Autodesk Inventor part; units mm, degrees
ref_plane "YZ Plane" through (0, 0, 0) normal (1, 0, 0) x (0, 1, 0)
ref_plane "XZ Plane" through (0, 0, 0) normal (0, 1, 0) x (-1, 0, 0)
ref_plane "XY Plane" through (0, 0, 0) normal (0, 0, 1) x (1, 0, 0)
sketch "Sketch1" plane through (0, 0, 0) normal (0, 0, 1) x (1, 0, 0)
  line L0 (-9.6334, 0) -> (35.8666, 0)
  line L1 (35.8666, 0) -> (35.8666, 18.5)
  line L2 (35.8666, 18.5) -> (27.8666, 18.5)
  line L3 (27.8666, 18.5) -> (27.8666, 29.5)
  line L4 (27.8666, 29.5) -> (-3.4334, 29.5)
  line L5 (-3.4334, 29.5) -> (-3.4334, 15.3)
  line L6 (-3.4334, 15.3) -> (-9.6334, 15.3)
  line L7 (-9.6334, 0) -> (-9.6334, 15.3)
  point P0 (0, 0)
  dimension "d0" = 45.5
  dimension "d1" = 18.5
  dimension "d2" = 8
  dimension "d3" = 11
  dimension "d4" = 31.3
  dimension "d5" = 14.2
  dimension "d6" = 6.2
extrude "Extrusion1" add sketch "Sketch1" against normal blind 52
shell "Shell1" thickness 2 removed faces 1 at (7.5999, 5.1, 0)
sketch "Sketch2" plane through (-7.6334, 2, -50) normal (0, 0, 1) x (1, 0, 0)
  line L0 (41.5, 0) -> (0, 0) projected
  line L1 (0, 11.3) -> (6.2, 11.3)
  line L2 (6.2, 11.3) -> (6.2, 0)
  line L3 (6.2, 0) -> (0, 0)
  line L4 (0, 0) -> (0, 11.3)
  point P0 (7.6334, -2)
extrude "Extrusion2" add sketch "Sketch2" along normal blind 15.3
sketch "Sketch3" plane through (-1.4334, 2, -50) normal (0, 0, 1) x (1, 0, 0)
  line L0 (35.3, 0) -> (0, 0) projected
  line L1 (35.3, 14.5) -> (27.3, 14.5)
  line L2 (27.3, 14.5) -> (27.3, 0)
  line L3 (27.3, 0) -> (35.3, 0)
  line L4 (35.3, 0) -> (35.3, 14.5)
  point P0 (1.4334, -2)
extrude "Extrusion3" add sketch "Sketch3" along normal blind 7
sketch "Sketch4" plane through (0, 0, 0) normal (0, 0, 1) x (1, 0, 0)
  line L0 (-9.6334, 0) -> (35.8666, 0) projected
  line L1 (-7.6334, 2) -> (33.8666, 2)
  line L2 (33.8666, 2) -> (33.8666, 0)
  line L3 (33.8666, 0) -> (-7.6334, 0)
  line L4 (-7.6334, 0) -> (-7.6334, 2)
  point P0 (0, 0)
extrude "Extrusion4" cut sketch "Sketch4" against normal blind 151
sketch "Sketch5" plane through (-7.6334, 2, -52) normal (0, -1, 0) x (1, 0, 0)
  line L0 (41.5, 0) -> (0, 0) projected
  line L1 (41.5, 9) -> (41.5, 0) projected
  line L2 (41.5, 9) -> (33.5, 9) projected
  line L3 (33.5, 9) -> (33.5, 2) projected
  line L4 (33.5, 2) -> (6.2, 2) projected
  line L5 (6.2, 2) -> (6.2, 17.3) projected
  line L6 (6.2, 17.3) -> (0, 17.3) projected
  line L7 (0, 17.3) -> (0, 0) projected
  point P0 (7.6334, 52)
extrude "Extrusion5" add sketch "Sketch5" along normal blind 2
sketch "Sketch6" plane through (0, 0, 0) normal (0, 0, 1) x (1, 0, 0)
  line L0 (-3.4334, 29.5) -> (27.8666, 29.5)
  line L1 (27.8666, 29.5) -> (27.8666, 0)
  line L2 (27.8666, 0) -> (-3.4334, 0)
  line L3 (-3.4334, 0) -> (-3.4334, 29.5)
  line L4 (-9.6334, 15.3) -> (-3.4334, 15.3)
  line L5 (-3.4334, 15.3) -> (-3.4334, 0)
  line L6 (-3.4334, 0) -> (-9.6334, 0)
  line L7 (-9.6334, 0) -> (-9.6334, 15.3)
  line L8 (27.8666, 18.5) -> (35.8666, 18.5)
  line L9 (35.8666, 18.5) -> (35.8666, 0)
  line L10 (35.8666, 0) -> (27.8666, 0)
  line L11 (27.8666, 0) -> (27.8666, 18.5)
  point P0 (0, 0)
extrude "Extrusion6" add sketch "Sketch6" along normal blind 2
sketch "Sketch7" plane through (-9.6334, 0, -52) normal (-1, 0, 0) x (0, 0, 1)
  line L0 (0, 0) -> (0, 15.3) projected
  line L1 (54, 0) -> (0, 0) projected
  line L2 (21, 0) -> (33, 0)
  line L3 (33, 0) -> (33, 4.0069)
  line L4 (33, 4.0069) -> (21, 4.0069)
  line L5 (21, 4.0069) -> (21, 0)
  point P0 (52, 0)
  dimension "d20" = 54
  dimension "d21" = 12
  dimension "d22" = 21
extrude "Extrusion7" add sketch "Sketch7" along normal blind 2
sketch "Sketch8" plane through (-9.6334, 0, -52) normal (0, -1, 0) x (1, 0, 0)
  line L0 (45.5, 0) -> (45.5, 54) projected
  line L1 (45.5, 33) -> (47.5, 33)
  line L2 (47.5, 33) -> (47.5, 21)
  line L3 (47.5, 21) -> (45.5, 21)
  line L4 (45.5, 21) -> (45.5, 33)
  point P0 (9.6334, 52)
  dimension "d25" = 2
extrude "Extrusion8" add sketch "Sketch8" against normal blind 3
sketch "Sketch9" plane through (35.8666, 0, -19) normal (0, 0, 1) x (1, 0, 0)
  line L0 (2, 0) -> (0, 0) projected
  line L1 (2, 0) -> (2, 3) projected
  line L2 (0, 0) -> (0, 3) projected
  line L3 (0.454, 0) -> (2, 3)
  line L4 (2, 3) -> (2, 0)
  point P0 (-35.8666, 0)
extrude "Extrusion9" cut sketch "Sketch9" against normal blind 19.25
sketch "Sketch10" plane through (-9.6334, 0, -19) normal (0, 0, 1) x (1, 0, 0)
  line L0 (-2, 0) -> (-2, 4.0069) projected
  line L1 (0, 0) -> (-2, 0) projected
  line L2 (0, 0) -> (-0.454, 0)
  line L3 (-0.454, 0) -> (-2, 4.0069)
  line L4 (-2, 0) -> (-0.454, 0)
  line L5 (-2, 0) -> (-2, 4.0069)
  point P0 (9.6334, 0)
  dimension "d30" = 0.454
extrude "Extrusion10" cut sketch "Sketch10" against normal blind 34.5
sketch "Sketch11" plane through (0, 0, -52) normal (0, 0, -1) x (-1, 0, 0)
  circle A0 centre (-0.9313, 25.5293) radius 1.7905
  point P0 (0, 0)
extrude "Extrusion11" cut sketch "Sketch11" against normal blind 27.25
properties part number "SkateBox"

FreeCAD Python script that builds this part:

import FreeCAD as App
import Part
import Sketcher
from FreeCAD import Vector


def faces_at(feature, points):
    """Names of the faces that lie closest to the given points."""
    faces = feature.Shape.Faces
    near = lambda p: min(range(len(faces)), key=lambda i: faces[i].distToShape(Part.Vertex(*p))[0])
    return sorted({f"Face{near(p) + 1}" for p in points})

doc = App.newDocument("Part")
body = doc.addObject("PartDesign::Body", "Body")

# Sketch on XY plane
sketch1 = body.newObject("Sketcher::SketchObject", "Sketch")
sketch1.AttachmentSupport = (doc.getObject("XY_Plane"), [""])
sketch1.MapMode = "FlatFace"
sketch1.addGeometry([
    Part.LineSegment(Vector(-10, 15, 0), Vector(-10, 0, 0)),  # 0
    Part.LineSegment(Vector(-10, 0, 0), Vector(36, 0, 0)),  # 1
    Part.LineSegment(Vector(36, 0, 0), Vector(36, 18, 0)),  # 2
    Part.LineSegment(Vector(36, 18, 0), Vector(28, 18, 0)),  # 3
    Part.LineSegment(Vector(28, 18, 0), Vector(28, 30, 0)),  # 4
    Part.LineSegment(Vector(28, 30, 0), Vector(-3, 30, 0)),  # 5
    Part.LineSegment(Vector(-3, 30, 0), Vector(-3, 15, 0)),  # 6
    Part.LineSegment(Vector(-3, 15, 0), Vector(-10, 15, 0)),  # 7
], False)
sketch1.addConstraint([
    Sketcher.Constraint("Coincident", 0, 2, 1, 1),
    Sketcher.Constraint("Coincident", 1, 2, 2, 1),
    Sketcher.Constraint("Coincident", 2, 2, 3, 1),
    Sketcher.Constraint("Coincident", 3, 2, 4, 1),
    Sketcher.Constraint("Coincident", 4, 2, 5, 1),
    Sketcher.Constraint("Coincident", 5, 2, 6, 1),
    Sketcher.Constraint("Coincident", 6, 2, 7, 1),
    Sketcher.Constraint("Coincident", 7, 2, 0, 1),
    Sketcher.Constraint("Vertical", 0),
    Sketcher.Constraint("Horizontal", 1),
    Sketcher.Constraint("Vertical", 2),
    Sketcher.Constraint("Horizontal", 3),
    Sketcher.Constraint("Vertical", 4),
    Sketcher.Constraint("Horizontal", 5),
    Sketcher.Constraint("Vertical", 6),
    Sketcher.Constraint("Horizontal", 7),
    Sketcher.Constraint("PointOnObject", 0, 2, -1),
    Sketcher.Constraint("DistanceX", 3, 2, 3, 1, 8.0),
    Sketcher.Constraint("DistanceY", 4, 1, 4, 2, 11.0),
    Sketcher.Constraint("DistanceX", 1, 1, 1, 2, 45.5),
    Sketcher.Constraint("DistanceX", 5, 2, 5, 1, 31.3),
    Sketcher.Constraint("DistanceY", 2, 1, 2, 2, 18.5),
    Sketcher.Constraint("DistanceY", 6, 2, 6, 1, 14.2),
    Sketcher.Constraint("DistanceX", 0, 2, -1, 1, 9.6334),
])
pad1 = body.newObject("PartDesign::Pad", "Pad")
pad1.Profile = sketch1
pad1.Length = 52
pad1.Reversed = True
doc.recompute()

thickness = body.newObject("PartDesign::Thickness", "Thickness")
thickness.Base = (pad1, faces_at(pad1, [(7.6, 5.1, 0)]))
thickness.Value = 2
thickness.Reversed = True
thickness.Join = "Intersection"

# Sketch on XY plane
sketch2 = body.newObject("Sketcher::SketchObject", "Sketch001")
sketch2.AttachmentSupport = (doc.getObject("XY_Plane"), [""])
sketch2.MapMode = "FlatFace"
sketch2.AttachmentOffset = App.Placement(Vector(0, 0, -50), App.Rotation())
sketch2.addGeometry([
    Part.LineSegment(Vector(-8, 2, 0), Vector(-1, 2, 0)),
    Part.LineSegment(Vector(-1, 2, 0), Vector(-1, 13, 0)),
    Part.LineSegment(Vector(-1, 13, 0), Vector(-8, 13, 0)),
    Part.LineSegment(Vector(-8, 13, 0), Vector(-8, 2, 0)),
], False)
sketch2.addConstraint([
    Sketcher.Constraint("Coincident", 0, 2, 1, 1),
    Sketcher.Constraint("Coincident", 1, 2, 2, 1),
    Sketcher.Constraint("Coincident", 2, 2, 3, 1),
    Sketcher.Constraint("Coincident", 3, 2, 0, 1),
    Sketcher.Constraint("Horizontal", 0),
    Sketcher.Constraint("Vertical", 1),
    Sketcher.Constraint("Horizontal", 2),
    Sketcher.Constraint("Vertical", 3),
    Sketcher.Constraint("DistanceX", 0, 1, 0, 2, 6.2),
    Sketcher.Constraint("DistanceY", 1, 1, 1, 2, 11.3),
    Sketcher.Constraint("DistanceY", -1, 1, 0, 2, 2.0),
    Sketcher.Constraint("DistanceX", 0, 2, -1, 1, 1.4334),
])
pad2 = body.newObject("PartDesign::Pad", "Pad001")
pad2.Profile = sketch2
pad2.Length = 15.3

# Sketch on XY plane
sketch3 = body.newObject("Sketcher::SketchObject", "Sketch002")
sketch3.AttachmentSupport = (doc.getObject("XY_Plane"), [""])
sketch3.MapMode = "FlatFace"
sketch3.AttachmentOffset = App.Placement(Vector(0, 0, -50), App.Rotation())
sketch3.addGeometry([
    Part.LineSegment(Vector(26, 2, 0), Vector(34, 2, 0)),
    Part.LineSegment(Vector(34, 2, 0), Vector(34, 16, 0)),
    Part.LineSegment(Vector(34, 16, 0), Vector(26, 16, 0)),
    Part.LineSegment(Vector(26, 16, 0), Vector(26, 2, 0)),
], False)
sketch3.addConstraint([
    Sketcher.Constraint("Coincident", 0, 2, 1, 1),
    Sketcher.Constraint("Coincident", 1, 2, 2, 1),
    Sketcher.Constraint("Coincident", 2, 2, 3, 1),
    Sketcher.Constraint("Coincident", 3, 2, 0, 1),
    Sketcher.Constraint("Horizontal", 0),
    Sketcher.Constraint("Vertical", 1),
    Sketcher.Constraint("Horizontal", 2),
    Sketcher.Constraint("Vertical", 3),
    Sketcher.Constraint("DistanceX", 0, 1, 0, 2, 8.0),
    Sketcher.Constraint("DistanceY", 1, 1, 1, 2, 14.5),
    Sketcher.Constraint("DistanceY", -1, 1, 0, 2, 2.0),
    Sketcher.Constraint("DistanceX", -1, 1, 0, 2, 33.8666),
])
pad3 = body.newObject("PartDesign::Pad", "Pad002")
pad3.Profile = sketch3
pad3.Length = 7

# Sketch on XY plane
sketch4 = body.newObject("Sketcher::SketchObject", "Sketch003")
sketch4.AttachmentSupport = (doc.getObject("XY_Plane"), [""])
sketch4.MapMode = "FlatFace"
sketch4.addGeometry([
    Part.LineSegment(Vector(-7.6, 2, 0), Vector(-7.6, 0, 0)),
    Part.LineSegment(Vector(-7.6, 0, 0), Vector(33.9, 0, 0)),
    Part.LineSegment(Vector(33.9, 0, 0), Vector(33.9, 2, 0)),
    Part.LineSegment(Vector(33.9, 2, 0), Vector(-7.6, 2, 0)),
], False)
sketch4.addConstraint([
    Sketcher.Constraint("Coincident", 0, 2, 1, 1),
    Sketcher.Constraint("Coincident", 1, 2, 2, 1),
    Sketcher.Constraint("Coincident", 2, 2, 3, 1),
    Sketcher.Constraint("Coincident", 3, 2, 0, 1),
    Sketcher.Constraint("Vertical", 0),
    Sketcher.Constraint("Horizontal", 1),
    Sketcher.Constraint("Vertical", 2),
    Sketcher.Constraint("Horizontal", 3),
    Sketcher.Constraint("PointOnObject", 0, 2, -1),
    Sketcher.Constraint("DistanceY", 0, 2, 0, 1, 2.0),
    Sketcher.Constraint("DistanceX", 1, 1, 1, 2, 41.5),
    Sketcher.Constraint("DistanceX", 0, 2, -1, 1, 7.6334),
])
pocket1 = body.newObject("PartDesign::Pocket", "Pocket")
pocket1.Profile = sketch4
pocket1.Length = 151

# Sketch on XZ plane
sketch5 = body.newObject("Sketcher::SketchObject", "Sketch004")
sketch5.AttachmentSupport = (doc.getObject("XZ_Plane"), [""])
sketch5.MapMode = "FlatFace"
sketch5.AttachmentOffset = App.Placement(Vector(0, 0, -2), App.Rotation())
sketch5.addGeometry([
    Part.LineSegment(Vector(-8, -52, 0), Vector(34, -52, 0)),  # 0
    Part.LineSegment(Vector(34, -52, 0), Vector(34, -43, 0)),  # 1
    Part.LineSegment(Vector(34, -43, 0), Vector(26, -43, 0)),  # 2
    Part.LineSegment(Vector(26, -43, 0), Vector(26, -50, 0)),  # 3
    Part.LineSegment(Vector(26, -50, 0), Vector(-1, -50, 0)),  # 4
    Part.LineSegment(Vector(-1, -50, 0), Vector(-1, -35, 0)),  # 5
    Part.LineSegment(Vector(-1, -35, 0), Vector(-8, -35, 0)),  # 6
    Part.LineSegment(Vector(-8, -35, 0), Vector(-8, -52, 0)),  # 7
], False)
sketch5.addConstraint([
    Sketcher.Constraint("Coincident", 0, 2, 1, 1),
    Sketcher.Constraint("Coincident", 1, 2, 2, 1),
    Sketcher.Constraint("Coincident", 2, 2, 3, 1),
    Sketcher.Constraint("Coincident", 3, 2, 4, 1),
    Sketcher.Constraint("Coincident", 4, 2, 5, 1),
    Sketcher.Constraint("Coincident", 5, 2, 6, 1),
    Sketcher.Constraint("Coincident", 6, 2, 7, 1),
    Sketcher.Constraint("Coincident", 7, 2, 0, 1),
    Sketcher.Constraint("Horizontal", 0),
    Sketcher.Constraint("Vertical", 1),
    Sketcher.Constraint("Horizontal", 2),
    Sketcher.Constraint("Vertical", 3),
    Sketcher.Constraint("Horizontal", 4),
    Sketcher.Constraint("Vertical", 5),
    Sketcher.Constraint("Horizontal", 6),
    Sketcher.Constraint("Vertical", 7),
    Sketcher.Constraint("DistanceX", 2, 2, 2, 1, 8.0),
    Sketcher.Constraint("DistanceY", 1, 1, 1, 2, 9.0),
    Sketcher.Constraint("DistanceY", 3, 2, 3, 1, 7.0),
    Sketcher.Constraint("DistanceX", 0, 1, 0, 2, 41.5),
    Sketcher.Constraint("DistanceX", 4, 2, 4, 1, 27.3),
    Sketcher.Constraint("DistanceY", 5, 1, 5, 2, 15.3),
    Sketcher.Constraint("DistanceY", 0, 2, -1, 1, 52.0),
    Sketcher.Constraint("DistanceX", -1, 1, 0, 2, 33.8666),
])
pad4 = body.newObject("PartDesign::Pad", "Pad003")
pad4.Profile = sketch5
pad4.Length = 2

# Sketch on XY plane
sketch6 = body.newObject("Sketcher::SketchObject", "Sketch005")
sketch6.AttachmentSupport = (doc.getObject("XY_Plane"), [""])
sketch6.MapMode = "FlatFace"
sketch6.addGeometry([
    Part.LineSegment(Vector(28, 30, 0), Vector(-3, 30, 0)),  # 0
    Part.LineSegment(Vector(-3, 30, 0), Vector(-3, 15, 0)),  # 1
    Part.LineSegment(Vector(-3, 15, 0), Vector(-10, 15, 0)),  # 2
    Part.LineSegment(Vector(-10, 15, 0), Vector(-10, 0, 0)),  # 3
    Part.LineSegment(Vector(-10, 0, 0), Vector(36, 0, 0)),  # 4
    Part.LineSegment(Vector(36, 0, 0), Vector(36, 18, 0)),  # 5
    Part.LineSegment(Vector(36, 18, 0), Vector(28, 18, 0)),  # 6
    Part.LineSegment(Vector(28, 18, 0), Vector(28, 30, 0)),  # 7
], False)
sketch6.addConstraint([
    Sketcher.Constraint("Coincident", 0, 2, 1, 1),
    Sketcher.Constraint("Coincident", 1, 2, 2, 1),
    Sketcher.Constraint("Coincident", 2, 2, 3, 1),
    Sketcher.Constraint("Coincident", 3, 2, 4, 1),
    Sketcher.Constraint("Coincident", 4, 2, 5, 1),
    Sketcher.Constraint("Coincident", 5, 2, 6, 1),
    Sketcher.Constraint("Coincident", 6, 2, 7, 1),
    Sketcher.Constraint("Coincident", 7, 2, 0, 1),
    Sketcher.Constraint("Horizontal", 0),
    Sketcher.Constraint("Vertical", 1),
    Sketcher.Constraint("Horizontal", 2),
    Sketcher.Constraint("Vertical", 3),
    Sketcher.Constraint("Horizontal", 4),
    Sketcher.Constraint("Vertical", 5),
    Sketcher.Constraint("Horizontal", 6),
    Sketcher.Constraint("Vertical", 7),
    Sketcher.Constraint("PointOnObject", 3, 2, -1),
    Sketcher.Constraint("DistanceX", 6, 2, 6, 1, 8.0),
    Sketcher.Constraint("DistanceY", 7, 1, 7, 2, 11.0),
    Sketcher.Constraint("DistanceX", 0, 2, 0, 1, 31.3),
    Sketcher.Constraint("DistanceX", 2, 2, 2, 1, 6.2),
    Sketcher.Constraint("DistanceY", 1, 2, 1, 1, 14.2),
    Sketcher.Constraint("DistanceY", 3, 2, 3, 1, 15.3),
    Sketcher.Constraint("DistanceX", 0, 2, -1, 1, 3.4334),
])
pad5 = body.newObject("PartDesign::Pad", "Pad004")
pad5.Profile = sketch6
pad5.Length = 2

# Sketch on YZ plane
sketch7 = body.newObject("Sketcher::SketchObject", "Sketch006")
sketch7.AttachmentSupport = (doc.getObject("YZ_Plane"), [""])
sketch7.MapMode = "FlatFace"
sketch7.AttachmentOffset = App.Placement(Vector(0, 0, -9.6334), App.Rotation())
sketch7.addGeometry([
    Part.LineSegment(Vector(0, -31, 0), Vector(0, -19, 0)),
    Part.LineSegment(Vector(0, -19, 0), Vector(4, -19, 0)),
    Part.LineSegment(Vector(4, -19, 0), Vector(4, -31, 0)),
    Part.LineSegment(Vector(4, -31, 0), Vector(0, -31, 0)),
], False)
sketch7.addConstraint([
    Sketcher.Constraint("Coincident", 0, 2, 1, 1),
    Sketcher.Constraint("Coincident", 1, 2, 2, 1),
    Sketcher.Constraint("Coincident", 2, 2, 3, 1),
    Sketcher.Constraint("Coincident", 3, 2, 0, 1),
    Sketcher.Constraint("Vertical", 0),
    Sketcher.Constraint("Horizontal", 1),
    Sketcher.Constraint("Vertical", 2),
    Sketcher.Constraint("Horizontal", 3),
    Sketcher.Constraint("PointOnObject", 0, 2, -2),
    Sketcher.Constraint("DistanceY", 0, 1, 0, 2, 12.0),
    Sketcher.Constraint("DistanceY", 0, 2, -1, 1, 19.0),
    Sketcher.Constraint("DistanceX", 1, 1, 1, 2, 4.007),
])
pad6 = body.newObject("PartDesign::Pad", "Pad005")
pad6.Profile = sketch7
pad6.Length = 2
pad6.Reversed = True

# Sketch on XZ plane
sketch8 = body.newObject("Sketcher::SketchObject", "Sketch007")
sketch8.AttachmentSupport = (doc.getObject("XZ_Plane"), [""])
sketch8.MapMode = "FlatFace"
sketch8.addGeometry([
    Part.LineSegment(Vector(35.9, -19, 0), Vector(35.9, -31, 0)),
    Part.LineSegment(Vector(35.9, -31, 0), Vector(37.9, -31, 0)),
    Part.LineSegment(Vector(37.9, -31, 0), Vector(37.9, -19, 0)),
    Part.LineSegment(Vector(37.9, -19, 0), Vector(35.9, -19, 0)),
], False)
sketch8.addConstraint([
    Sketcher.Constraint("Coincident", 0, 2, 1, 1),
    Sketcher.Constraint("Coincident", 1, 2, 2, 1),
    Sketcher.Constraint("Coincident", 2, 2, 3, 1),
    Sketcher.Constraint("Coincident", 3, 2, 0, 1),
    Sketcher.Constraint("Vertical", 0),
    Sketcher.Constraint("Horizontal", 1),
    Sketcher.Constraint("Vertical", 2),
    Sketcher.Constraint("Horizontal", 3),
    Sketcher.Constraint("DistanceX", 1, 1, 1, 2, 2.0),
    Sketcher.Constraint("DistanceY", 0, 2, 0, 1, 12.0),
    Sketcher.Constraint("DistanceY", 0, 2, -1, 1, 31.0),
    Sketcher.Constraint("DistanceX", -1, 1, 0, 2, 35.8666),
])
pad7 = body.newObject("PartDesign::Pad", "Pad006")
pad7.Profile = sketch8
pad7.Length = 3
pad7.Reversed = True

# Sketch on XY plane
sketch9 = body.newObject("Sketcher::SketchObject", "Sketch008")
sketch9.AttachmentSupport = (doc.getObject("XY_Plane"), [""])
sketch9.MapMode = "FlatFace"
sketch9.AttachmentOffset = App.Placement(Vector(0, 0, -19), App.Rotation())
sketch9.addGeometry([
    Part.LineSegment(Vector(36.3, 0, 0), Vector(37.9, 0, 0)),
    Part.LineSegment(Vector(37.9, 0, 0), Vector(37.9, 3, 0)),
    Part.LineSegment(Vector(37.9, 3, 0), Vector(36.3, 0, 0)),
], False)
sketch9.addConstraint([
    Sketcher.Constraint("Coincident", 0, 2, 1, 1),
    Sketcher.Constraint("Coincident", 1, 2, 2, 1),
    Sketcher.Constraint("Coincident", 2, 2, 0, 1),
    Sketcher.Constraint("Horizontal", 0),
    Sketcher.Constraint("Vertical", 1),
    Sketcher.Constraint("PointOnObject", 0, 2, -1),
    Sketcher.Constraint("DistanceY", 1, 1, 1, 2, 3.0),
    Sketcher.Constraint("DistanceX", 0, 1, 0, 2, 1.546),
    Sketcher.Constraint("DistanceX", -1, 1, 0, 2, 37.8666),
])
pocket2 = body.newObject("PartDesign::Pocket", "Pocket001")
pocket2.Profile = sketch9
pocket2.Length = 19.25

# Sketch on XY plane
sketch10 = body.newObject("Sketcher::SketchObject", "Sketch009")
sketch10.AttachmentSupport = (doc.getObject("XY_Plane"), [""])
sketch10.MapMode = "FlatFace"
sketch10.AttachmentOffset = App.Placement(Vector(0, 0, -19), App.Rotation())
sketch10.addGeometry([
    Part.LineSegment(Vector(-11.6, 4, 0), Vector(-11.6, 0, 0)),
    Part.LineSegment(Vector(-11.6, 0, 0), Vector(-10.1, 0, 0)),
    Part.LineSegment(Vector(-10.1, 0, 0), Vector(-11.6, 4, 0)),
], False)
sketch10.addConstraint([
    Sketcher.Constraint("Coincident", 0, 2, 1, 1),
    Sketcher.Constraint("Coincident", 1, 2, 2, 1),
    Sketcher.Constraint("Coincident", 2, 2, 0, 1),
    Sketcher.Constraint("Vertical", 0),
    Sketcher.Constraint("Horizontal", 1),
    Sketcher.Constraint("PointOnObject", 0, 2, -1),
    Sketcher.Constraint("DistanceX", 1, 1, 1, 2, 1.546),
    Sketcher.Constraint("DistanceY", 0, 2, 0, 1, 4.007),
    Sketcher.Constraint("DistanceX", 0, 2, -1, 1, 11.6334),
])
pocket3 = body.newObject("PartDesign::Pocket", "Pocket002")
pocket3.Profile = sketch10
pocket3.Length = 34.5

# Sketch on XY plane
sketch11 = body.newObject("Sketcher::SketchObject", "Sketch010")
sketch11.AttachmentSupport = (doc.getObject("XY_Plane"), [""])
sketch11.MapMode = "FlatFace"
sketch11.AttachmentOffset = App.Placement(Vector(0, 0, -52), App.Rotation())
sketch11.addGeometry(Part.Circle(Vector(0.9, 25.5, 0), Vector(0, 0, 1), 1.8), False)
sketch11.addConstraint([
    Sketcher.Constraint("Diameter", 0, 3.581),
    Sketcher.Constraint("DistanceX", -1, 1, 0, 3, 0.9313),
    Sketcher.Constraint("DistanceY", -1, 1, 0, 3, 25.5293),
])
pocket4 = body.newObject("PartDesign::Pocket", "Pocket003")
pocket4.Profile = sketch11
pocket4.Length = 27.25
pocket4.Reversed = True

doc.recompute()
